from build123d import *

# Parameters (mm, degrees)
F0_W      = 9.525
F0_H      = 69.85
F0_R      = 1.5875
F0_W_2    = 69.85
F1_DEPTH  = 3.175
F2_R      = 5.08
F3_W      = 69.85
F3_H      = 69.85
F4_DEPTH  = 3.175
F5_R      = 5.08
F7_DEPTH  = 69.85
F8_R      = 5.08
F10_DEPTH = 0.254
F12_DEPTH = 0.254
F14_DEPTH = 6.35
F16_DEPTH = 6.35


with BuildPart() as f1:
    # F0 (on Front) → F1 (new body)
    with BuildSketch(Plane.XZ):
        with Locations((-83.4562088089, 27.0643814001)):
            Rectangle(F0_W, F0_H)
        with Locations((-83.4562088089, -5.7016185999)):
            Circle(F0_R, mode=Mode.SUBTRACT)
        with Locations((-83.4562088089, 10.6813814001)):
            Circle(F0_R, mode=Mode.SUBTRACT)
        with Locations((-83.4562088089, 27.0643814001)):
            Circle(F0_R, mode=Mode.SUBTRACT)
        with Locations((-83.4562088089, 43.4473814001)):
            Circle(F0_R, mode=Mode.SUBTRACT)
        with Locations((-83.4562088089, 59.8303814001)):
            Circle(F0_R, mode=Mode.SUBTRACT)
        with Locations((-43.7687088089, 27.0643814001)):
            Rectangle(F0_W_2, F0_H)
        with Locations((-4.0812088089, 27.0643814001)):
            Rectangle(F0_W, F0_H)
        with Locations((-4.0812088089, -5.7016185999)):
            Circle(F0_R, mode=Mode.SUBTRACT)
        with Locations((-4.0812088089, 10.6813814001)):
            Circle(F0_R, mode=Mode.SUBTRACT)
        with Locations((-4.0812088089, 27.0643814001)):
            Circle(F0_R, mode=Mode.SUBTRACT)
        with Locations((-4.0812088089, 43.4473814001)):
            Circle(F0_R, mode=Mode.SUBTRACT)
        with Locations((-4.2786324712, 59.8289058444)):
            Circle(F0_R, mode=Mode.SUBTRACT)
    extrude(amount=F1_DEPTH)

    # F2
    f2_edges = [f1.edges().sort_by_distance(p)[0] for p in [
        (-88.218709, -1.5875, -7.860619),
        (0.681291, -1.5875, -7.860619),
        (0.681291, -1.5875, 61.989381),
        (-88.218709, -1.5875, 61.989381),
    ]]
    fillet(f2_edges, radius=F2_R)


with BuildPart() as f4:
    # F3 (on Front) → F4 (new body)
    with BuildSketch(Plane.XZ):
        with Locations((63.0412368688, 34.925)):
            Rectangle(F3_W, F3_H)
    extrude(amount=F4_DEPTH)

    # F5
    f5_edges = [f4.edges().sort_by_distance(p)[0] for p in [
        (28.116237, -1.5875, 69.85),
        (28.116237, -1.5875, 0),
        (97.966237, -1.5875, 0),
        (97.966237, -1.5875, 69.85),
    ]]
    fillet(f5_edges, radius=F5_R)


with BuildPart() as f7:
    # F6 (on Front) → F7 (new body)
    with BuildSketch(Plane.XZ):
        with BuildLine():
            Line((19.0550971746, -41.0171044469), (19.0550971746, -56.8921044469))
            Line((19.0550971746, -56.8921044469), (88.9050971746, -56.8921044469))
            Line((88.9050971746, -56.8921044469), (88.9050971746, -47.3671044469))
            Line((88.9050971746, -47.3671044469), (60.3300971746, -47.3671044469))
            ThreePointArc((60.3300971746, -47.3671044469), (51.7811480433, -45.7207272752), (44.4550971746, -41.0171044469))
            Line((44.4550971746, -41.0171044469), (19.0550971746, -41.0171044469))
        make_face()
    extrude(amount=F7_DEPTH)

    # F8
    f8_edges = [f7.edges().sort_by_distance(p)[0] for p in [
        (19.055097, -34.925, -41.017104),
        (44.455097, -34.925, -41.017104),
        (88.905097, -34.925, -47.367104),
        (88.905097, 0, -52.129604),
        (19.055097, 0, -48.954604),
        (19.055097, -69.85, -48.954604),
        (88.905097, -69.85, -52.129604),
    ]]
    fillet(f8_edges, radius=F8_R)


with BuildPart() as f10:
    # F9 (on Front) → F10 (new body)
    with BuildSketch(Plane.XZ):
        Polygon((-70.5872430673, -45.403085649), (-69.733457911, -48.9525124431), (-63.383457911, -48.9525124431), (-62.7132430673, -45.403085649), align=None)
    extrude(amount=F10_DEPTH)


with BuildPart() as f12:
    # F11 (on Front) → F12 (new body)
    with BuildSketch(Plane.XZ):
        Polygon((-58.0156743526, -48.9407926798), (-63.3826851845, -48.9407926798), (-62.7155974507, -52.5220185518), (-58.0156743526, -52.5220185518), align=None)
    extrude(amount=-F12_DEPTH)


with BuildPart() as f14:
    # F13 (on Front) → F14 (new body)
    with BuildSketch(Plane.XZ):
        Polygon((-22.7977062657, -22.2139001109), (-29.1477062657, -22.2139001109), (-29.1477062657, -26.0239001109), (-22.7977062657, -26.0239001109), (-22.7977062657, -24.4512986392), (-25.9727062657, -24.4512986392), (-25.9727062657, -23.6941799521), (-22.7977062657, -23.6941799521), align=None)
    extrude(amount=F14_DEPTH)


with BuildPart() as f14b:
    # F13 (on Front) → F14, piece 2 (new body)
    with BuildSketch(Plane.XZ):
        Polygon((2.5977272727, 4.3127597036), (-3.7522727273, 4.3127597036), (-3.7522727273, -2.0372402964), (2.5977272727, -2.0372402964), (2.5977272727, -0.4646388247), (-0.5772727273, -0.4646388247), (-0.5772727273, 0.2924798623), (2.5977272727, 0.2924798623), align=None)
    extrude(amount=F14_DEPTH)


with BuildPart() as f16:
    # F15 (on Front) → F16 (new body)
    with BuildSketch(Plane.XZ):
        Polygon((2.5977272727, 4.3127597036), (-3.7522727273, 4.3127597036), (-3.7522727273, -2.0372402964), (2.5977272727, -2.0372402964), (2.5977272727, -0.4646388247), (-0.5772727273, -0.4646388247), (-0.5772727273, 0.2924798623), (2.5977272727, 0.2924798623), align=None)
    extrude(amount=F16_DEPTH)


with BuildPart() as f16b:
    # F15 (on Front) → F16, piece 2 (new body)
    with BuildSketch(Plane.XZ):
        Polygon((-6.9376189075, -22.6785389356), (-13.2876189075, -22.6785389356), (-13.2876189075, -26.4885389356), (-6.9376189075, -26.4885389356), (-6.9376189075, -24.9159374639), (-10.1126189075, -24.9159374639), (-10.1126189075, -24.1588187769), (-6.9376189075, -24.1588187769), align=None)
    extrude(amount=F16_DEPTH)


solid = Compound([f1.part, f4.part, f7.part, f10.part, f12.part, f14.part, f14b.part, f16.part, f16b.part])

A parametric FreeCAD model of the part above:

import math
import FreeCAD as App
import Part
import Sketcher

V = App.Vector
Q = App.Units.Quantity


def edges_at(feature, points):
    """Names of the edges that pass closest to the given points."""
    edges = feature.Shape.Edges
    near = lambda p: min(range(len(edges)), key=lambda i: edges[i].distToShape(Part.Vertex(*p))[0])
    return sorted({f"Edge{near(p) + 1}" for p in points})


def add_polygon(sketch, points):
    """Adds a closed chain of lines whose ends are joined by coincident constraints."""
    first, n = sketch.GeometryCount, len(points)
    for a, b in zip(points, points[1:] + points[:1]):
        sketch.addGeometry(Part.LineSegment(App.Vector(*a, 0), App.Vector(*b, 0)), False)
    for i in range(n):
        sketch.addConstraint(Sketcher.Constraint("Coincident", first + i, 2, first + (i + 1) % n, 1))

doc = App.newDocument("Part")
body = doc.addObject("PartDesign::Body", "Body")

# Sketch on XZ plane
sketch1 = body.newObject("Sketcher::SketchObject", "Sketch")
sketch1.AttachmentSupport = (doc.getObject("XZ_Plane"), [""])
sketch1.MapMode = "FlatFace"
add_polygon(sketch1, [(-88.2, 62), (-88.2, -7.9), (0.7, -7.9), (0.7, 62)])  # lines 0-3
sketch1.addGeometry(Part.Circle(V(-83.5, -5.7, 0), V(0, 0, 1), 1.6), False)  # 4
sketch1.addGeometry(Part.Circle(V(-83.5, 10.7, 0), V(0, 0, 1), 1.6), False)  # 5
sketch1.addGeometry(Part.Circle(V(-83.5, 27.1, 0), V(0, 0, 1), 1.6), False)  # 6
sketch1.addGeometry(Part.Circle(V(-4.1, -5.7, 0), V(0, 0, 1), 1.6), False)  # 7
sketch1.addGeometry(Part.Circle(V(-4.1, 10.7, 0), V(0, 0, 1), 1.6), False)  # 8
sketch1.addGeometry(Part.Circle(V(-4.1, 27.1, 0), V(0, 0, 1), 1.6), False)  # 9
sketch1.addGeometry(Part.Circle(V(-83.5, 43.4, 0), V(0, 0, 1), 1.6), False)  # 10
sketch1.addGeometry(Part.Circle(V(-83.5, 59.8, 0), V(0, 0, 1), 1.6), False)  # 11
sketch1.addGeometry(Part.Circle(V(-4.1, 43.4, 0), V(0, 0, 1), 1.6), False)  # 12
sketch1.addGeometry(Part.Circle(V(-4.3, 59.8, 0), V(0, 0, 1), 1.6), False)  # 13
sketch1.addConstraint([
    Sketcher.Constraint("Vertical", 0),
    Sketcher.Constraint("Horizontal", 1),
    Sketcher.Constraint("Vertical", 2),
    Sketcher.Constraint("Horizontal", 3),
    Sketcher.Constraint("Equal", 4, 5),
    Sketcher.Constraint("Equal", 5, 6),
    Sketcher.Constraint("Equal", 6, 7),
    Sketcher.Constraint("Equal", 7, 8),
    Sketcher.Constraint("Equal", 8, 9),
    Sketcher.Constraint("Equal", 9, 10),
    Sketcher.Constraint("Equal", 10, 11),
    Sketcher.Constraint("Equal", 11, 12),
    Sketcher.Constraint("Equal", 12, 13),
    Sketcher.Constraint("Horizontal", 4, 3, 7, 3),
    Sketcher.Constraint("Horizontal", 5, 3, 8, 3),
    Sketcher.Constraint("Horizontal", 6, 3, 9, 3),
    Sketcher.Constraint("Horizontal", 10, 3, 12, 3),
    Sketcher.Constraint("Vertical", 4, 3, 5, 3),
    Sketcher.Constraint("Vertical", 5, 3, 6, 3),
    Sketcher.Constraint("Vertical", 7, 3, 8, 3),
    Sketcher.Constraint("Vertical", 8, 3, 9, 3),
    Sketcher.Constraint("Vertical", 6, 3, 10, 3),
    Sketcher.Constraint("Vertical", 10, 3, 11, 3),
    Sketcher.Constraint("Vertical", 9, 3, 12, 3),
    Sketcher.Constraint("Diameter", 4, Q("0.125 in")),
    Sketcher.Constraint("DistanceX", 1, 1, 1, 2, Q("3.5 in")),
    Sketcher.Constraint("DistanceY", 0, 2, 0, 1, Q("2.75 in")),
    Sketcher.Constraint("DistanceY", 4, 3, 6, 3, Q("1.29 in")),
    Sketcher.Constraint("DistanceY", 5, 3, 10, 3, Q("1.29 in")),
    Sketcher.Constraint("DistanceY", 6, 3, 11, 3, Q("1.29 in")),
    Sketcher.Constraint("DistanceY", 0, 2, 5, 3, Q("0.73 in")),
    Sketcher.Constraint("DistanceY", 4, 3, 5, 3, Q("0.645 in")),
    Sketcher.Constraint("DistanceX", 4, 3, 7, 3, Q("3.125 in")),
    Sketcher.Constraint("DistanceX", 0, 2, 4, 3, Q("0.1875 in")),
    Sketcher.Constraint("DistanceX", 4, 3, -1, 1, Q("83.456209 mm")),
    Sketcher.Constraint("DistanceY", 4, 3, -1, 1, Q("5.701619 mm")),
    Sketcher.Constraint("DistanceX", 13, 3, -1, 1, Q("4.278632 mm")),
    Sketcher.Constraint("DistanceY", -1, 1, 13, 3, Q("59.828906 mm")),
])
pad1 = body.newObject("PartDesign::Pad", "Pad")
pad1.Profile = sketch1
pad1.Length = Q("0.125 in")
doc.recompute()

fillet = body.newObject("PartDesign::Fillet", "Fillet")
fillet.Base = (pad1, edges_at(pad1, [
    (-88.219, -1.587, -7.861),
    (0.681, -1.587, -7.861),
    (0.681, -1.587, 61.989),
    (-88.219, -1.587, 61.989),
]))
fillet.Radius = Q("0.2 in")
body2 = doc.addObject("PartDesign::Body", "Body001")

# Sketch on XZ plane
sketch2 = body2.newObject("Sketcher::SketchObject", "Sketch001")
sketch2.AttachmentSupport = (doc.getObject("XZ_Plane001"), [""])
sketch2.MapMode = "FlatFace"
add_polygon(sketch2, [(28, 70), (28, 0), (98, 0), (98, 70)])  # lines 0-3
sketch2.addConstraint([
    Sketcher.Constraint("Vertical", 0),
    Sketcher.Constraint("Horizontal", 1),
    Sketcher.Constraint("Vertical", 2),
    Sketcher.Constraint("Horizontal", 3),
    Sketcher.Constraint("PointOnObject", 0, 2, -1),
    Sketcher.Constraint("Equal", 3, 0),
    Sketcher.Constraint("DistanceX", 1, 1, 1, 2, Q("2.75 in")),
    Sketcher.Constraint("DistanceX", -1, 1, 0, 2, Q("28.116237 mm")),
])
pad2 = body2.newObject("PartDesign::Pad", "Pad001")
pad2.Profile = sketch2
pad2.Length = Q("0.125 in")
doc.recompute()

fillet2 = body2.newObject("PartDesign::Fillet", "Fillet001")
fillet2.Base = (pad2, edges_at(pad2, [
    (28.116, -1.587, 69.85),
    (28.116, -1.587, 0),
    (97.966, -1.587, 0),
    (97.966, -1.587, 69.85),
]))
fillet2.Radius = Q("0.2 in")
body3 = doc.addObject("PartDesign::Body", "Body002")

# Sketch on XZ plane
sketch3 = body3.newObject("Sketcher::SketchObject", "Sketch002")
sketch3.AttachmentSupport = (doc.getObject("XZ_Plane002"), [""])
sketch3.MapMode = "FlatFace"
sketch3.addGeometry([
    Part.LineSegment(V(19, -41, 0), V(19, -57, 0)),  # 0
    Part.LineSegment(V(19, -57, 0), V(89, -57, 0)),  # 1
    Part.LineSegment(V(89, -57, 0), V(89, -47, 0)),  # 2
    Part.LineSegment(V(89, -47, 0), V(60, -47, 0)),  # 3
    Part.ArcOfCircle(Part.Circle(V(60, -24, 0), V(0, 0, 1), 23), math.radians(-134), math.radians(-90)),  # 4
    Part.LineSegment(V(44, -41, 0), V(19, -41, 0)),  # 5
], False)
sketch3.addConstraint([
    Sketcher.Constraint("Coincident", 0, 2, 1, 1),
    Sketcher.Constraint("Coincident", 1, 2, 2, 1),
    Sketcher.Constraint("Coincident", 2, 2, 3, 1),
    Sketcher.Constraint("Tangent", 3, 2, 4, 2),
    Sketcher.Constraint("Coincident", 4, 1, 5, 1),
    Sketcher.Constraint("Coincident", 5, 2, 0, 1),
    Sketcher.Constraint("Vertical", 0),
    Sketcher.Constraint("Horizontal", 1),
    Sketcher.Constraint("Vertical", 2),
    Sketcher.Constraint("Horizontal", 3),
    Sketcher.Constraint("Horizontal", 5),
    Sketcher.Constraint("DistanceX", 5, 2, 5, 1, Q("1 in")),
    Sketcher.Constraint("Radius", 4, Q("0.90625 in")),
    Sketcher.Constraint("DistanceX", 1, 1, 1, 2, Q("2.75 in")),
    Sketcher.Constraint("DistanceX", 3, 2, 3, 1, Q("1.125 in")),
    Sketcher.Constraint("DistanceY", 0, 2, 0, 1, Q("0.625 in")),
    Sketcher.Constraint("DistanceX", -1, 1, 4, 3, Q("60.330097 mm")),
    Sketcher.Constraint("DistanceY", 4, 3, -1, 1, Q("24.348354 mm")),
])
pad3 = body3.newObject("PartDesign::Pad", "Pad002")
pad3.Profile = sketch3
pad3.Length = Q("2.75 in")
doc.recompute()

fillet3 = body3.newObject("PartDesign::Fillet", "Fillet002")
fillet3.Base = (pad3, edges_at(pad3, [
    (19.055, -34.925, -41.017),
    (44.455, -34.925, -41.017),
    (88.905, -34.925, -47.367),
    (88.905, 0, -52.13),
    (19.055, 0, -48.955),
    (19.055, -69.85, -48.955),
    (88.905, -69.85, -52.13),
]))
fillet3.Radius = Q("0.2 in")
body4 = doc.addObject("PartDesign::Body", "Body003")

# Sketch on XZ plane
sketch4 = body4.newObject("Sketcher::SketchObject", "Sketch003")
sketch4.AttachmentSupport = (doc.getObject("XZ_Plane003"), [""])
sketch4.MapMode = "FlatFace"
add_polygon(sketch4, [(-70.6, -45.4), (-69.7, -49), (-63.4, -49), (-62.7, -45.4)])  # lines 0-3
sketch4.addConstraint([
    Sketcher.Constraint("Horizontal", 1),
    Sketcher.Constraint("Horizontal", 3),
    Sketcher.Constraint("DistanceX", 1, 1, 1, 2, Q("0.25 in")),
    Sketcher.Constraint("DistanceX", 3, 2, 3, 1, Q("0.31 in")),
    Sketcher.Constraint("Distance", 0, Q("3.650668 mm")),
    Sketcher.Constraint("Distance", 2, Q("3.612149 mm")),
    Sketcher.Constraint("DistanceX", 0, 2, -1, 1, Q("69.733458 mm")),
    Sketcher.Constraint("DistanceY", 0, 2, -1, 1, Q("48.952512 mm")),
])
pad4 = body4.newObject("PartDesign::Pad", "Pad003")
pad4.Profile = sketch4
pad4.Length = Q("0.01 in")
body5 = doc.addObject("PartDesign::Body", "Body004")

# Sketch on XZ plane
sketch5 = body5.newObject("Sketcher::SketchObject", "Sketch004")
sketch5.AttachmentSupport = (doc.getObject("XZ_Plane004"), [""])
sketch5.MapMode = "FlatFace"
add_polygon(sketch5, [(-58, -48.9), (-63.4, -48.9), (-62.7, -52.5), (-58, -52.5)])  # lines 0-3
sketch5.addConstraint([
    Sketcher.Constraint("Horizontal", 0),
    Sketcher.Constraint("Horizontal", 2),
    Sketcher.Constraint("Vertical", 3),
    Sketcher.Constraint("DistanceX", 0, 2, 0, 1, Q("5.367011 mm")),
    Sketcher.Constraint("DistanceX", 2, 1, 2, 2, Q("4.699923 mm")),
    Sketcher.Constraint("DistanceY", 3, 1, 3, 2, Q("3.581226 mm")),
    Sketcher.Constraint("DistanceY", 1, 2, -1, 1, Q("52.522019 mm")),
    Sketcher.Constraint("DistanceX", 0, 2, -1, 1, Q("63.382685 mm")),
])
pad5 = body5.newObject("PartDesign::Pad", "Pad004")
pad5.Profile = sketch5
pad5.Length = Q("0.01 in")
pad5.Reversed = True
body6 = doc.addObject("PartDesign::Body", "Body005")

# Sketch on XZ plane
sketch6 = body6.newObject("Sketcher::SketchObject", "Sketch005")
sketch6.AttachmentSupport = (doc.getObject("XZ_Plane005"), [""])
sketch6.MapMode = "FlatFace"
add_polygon(sketch6, [(-22.8, -22.2), (-29.1, -22.2), (-29.1, -26), (-22.8, -26), (-22.8, -24.5), (-26, -24.5), (-26, -23.7), (-22.8, -23.7)])  # lines 0-7
sketch6.addConstraint([
    Sketcher.Constraint("Horizontal", 0),
    Sketcher.Constraint("Vertical", 1),
    Sketcher.Constraint("Horizontal", 2),
    Sketcher.Constraint("Vertical", 3),
    Sketcher.Constraint("Horizontal", 4),
    Sketcher.Constraint("Vertical", 5),
    Sketcher.Constraint("Horizontal", 6),
    Sketcher.Constraint("Vertical", 7),
    Sketcher.Constraint("Vertical", 3, 2, 6, 2),
    Sketcher.Constraint("DistanceX", 0, 2, 0, 1, Q("0.25 in")),
    Sketcher.Constraint("DistanceY", 1, 2, 1, 1, Q("0.15 in")),
    Sketcher.Constraint("DistanceX", 4, 2, 4, 1, Q("0.125 in")),
    Sketcher.Constraint("DistanceY", 3, 1, 3, 2, Q("1.572601 mm")),
    Sketcher.Constraint("DistanceY", 5, 1, 5, 2, Q("0.757119 mm")),
    Sketcher.Constraint("DistanceY", 0, 2, -1, 1, Q("22.2139 mm")),
    Sketcher.Constraint("DistanceX", 0, 2, -1, 1, Q("29.147706 mm")),
])
pad6 = body6.newObject("PartDesign::Pad", "Pad005")
pad6.Profile = sketch6
pad6.Length = Q("0.25 in")
body7 = doc.addObject("PartDesign::Body", "Body006")

# Sketch on XZ plane
sketch7 = body7.newObject("Sketcher::SketchObject", "Sketch006")
sketch7.AttachmentSupport = (doc.getObject("XZ_Plane006"), [""])
sketch7.MapMode = "FlatFace"
add_polygon(sketch7, [(2.6, 4.3), (-3.8, 4.3), (-3.8, -2), (2.6, -2), (2.6, -0.5), (-0.6, -0.5), (-0.6, 0.3), (2.6, 0.3)])  # lines 0-7
sketch7.addConstraint([
    Sketcher.Constraint("Horizontal", 0),
    Sketcher.Constraint("Vertical", 1),
    Sketcher.Constraint("Horizontal", 2),
    Sketcher.Constraint("Vertical", 3),
    Sketcher.Constraint("Horizontal", 4),
    Sketcher.Constraint("Vertical", 5),
    Sketcher.Constraint("Horizontal", 6),
    Sketcher.Constraint("Vertical", 7),
    Sketcher.Constraint("Vertical", 3, 2, 6, 2),
    Sketcher.Constraint("Equal", 2, 1),
    Sketcher.Constraint("DistanceX", 0, 2, 0, 1, Q("0.25 in")),
    Sketcher.Constraint("DistanceX", 4, 2, 4, 1, Q("0.125 in")),
    Sketcher.Constraint("DistanceY", 3, 1, 3, 2, Q("1.572601 mm")),
    Sketcher.Constraint("DistanceY", 5, 1, 5, 2, Q("0.757119 mm")),
    Sketcher.Constraint("DistanceY", -1, 1, 0, 2, Q("4.31276 mm")),
    Sketcher.Constraint("DistanceX", 0, 2, -1, 1, Q("3.752273 mm")),
])
pad7 = body7.newObject("PartDesign::Pad", "Pad006")
pad7.Profile = sketch7
pad7.Length = Q("0.25 in")
body8 = doc.addObject("PartDesign::Body", "Body007")

# Sketch on XZ plane
sketch8 = body8.newObject("Sketcher::SketchObject", "Sketch007")
sketch8.AttachmentSupport = (doc.getObject("XZ_Plane007"), [""])
sketch8.MapMode = "FlatFace"
add_polygon(sketch8, [(2.6, 4.3), (-3.8, 4.3), (-3.8, -2), (2.6, -2), (2.6, -0.5), (-0.6, -0.5), (-0.6, 0.3), (2.6, 0.3)])  # lines 0-7
sketch8.addConstraint([
    Sketcher.Constraint("Horizontal", 0),
    Sketcher.Constraint("Vertical", 1),
    Sketcher.Constraint("Horizontal", 2),
    Sketcher.Constraint("Vertical", 3),
    Sketcher.Constraint("Horizontal", 4),
    Sketcher.Constraint("Vertical", 5),
    Sketcher.Constraint("Horizontal", 6),
    Sketcher.Constraint("Vertical", 7),
    Sketcher.Constraint("Vertical", 3, 2, 6, 2),
    Sketcher.Constraint("Equal", 2, 1),
    Sketcher.Constraint("DistanceX", 0, 2, 0, 1, Q("0.25 in")),
    Sketcher.Constraint("DistanceX", 4, 2, 4, 1, Q("0.125 in")),
    Sketcher.Constraint("DistanceY", 3, 1, 3, 2, Q("1.572601 mm")),
    Sketcher.Constraint("DistanceY", 5, 1, 5, 2, Q("0.757119 mm")),
    Sketcher.Constraint("DistanceY", -1, 1, 0, 2, Q("4.31276 mm")),
    Sketcher.Constraint("DistanceX", 0, 2, -1, 1, Q("3.752273 mm")),
])
pad8 = body8.newObject("PartDesign::Pad", "Pad007")
pad8.Profile = sketch8
pad8.Length = Q("0.25 in")
body9 = doc.addObject("PartDesign::Body", "Body008")

# Sketch on XZ plane
sketch9 = body9.newObject("Sketcher::SketchObject", "Sketch008")
sketch9.AttachmentSupport = (doc.getObject("XZ_Plane008"), [""])
sketch9.MapMode = "FlatFace"
add_polygon(sketch9, [(-6.9, -22.7), (-13.3, -22.7), (-13.3, -26.5), (-6.9, -26.5), (-6.9, -24.9), (-10.1, -24.9), (-10.1, -24.2), (-6.9, -24.2)])  # lines 0-7
sketch9.addConstraint([
    Sketcher.Constraint("Horizontal", 0),
    Sketcher.Constraint("Vertical", 1),
    Sketcher.Constraint("Horizontal", 2),
    Sketcher.Constraint("Vertical", 3),
    Sketcher.Constraint("Horizontal", 4),
    Sketcher.Constraint("Vertical", 5),
    Sketcher.Constraint("Horizontal", 6),
    Sketcher.Constraint("Vertical", 7),
    Sketcher.Constraint("Vertical", 3, 2, 6, 2),
    Sketcher.Constraint("DistanceX", 0, 2, 0, 1, Q("0.25 in")),
    Sketcher.Constraint("DistanceY", 1, 2, 1, 1, Q("0.15 in")),
    Sketcher.Constraint("DistanceX", 4, 2, 4, 1, Q("0.125 in")),
    Sketcher.Constraint("DistanceY", 3, 1, 3, 2, Q("1.572601 mm")),
    Sketcher.Constraint("DistanceY", 5, 1, 5, 2, Q("0.757119 mm")),
    Sketcher.Constraint("DistanceX", 0, 2, -1, 1, Q("13.287619 mm")),
    Sketcher.Constraint("DistanceY", 0, 2, -1, 1, Q("22.678539 mm")),
])
pad9 = body9.newObject("PartDesign::Pad", "Pad008")
pad9.Profile = sketch9
pad9.Length = Q("0.25 in")

doc.recompute()
